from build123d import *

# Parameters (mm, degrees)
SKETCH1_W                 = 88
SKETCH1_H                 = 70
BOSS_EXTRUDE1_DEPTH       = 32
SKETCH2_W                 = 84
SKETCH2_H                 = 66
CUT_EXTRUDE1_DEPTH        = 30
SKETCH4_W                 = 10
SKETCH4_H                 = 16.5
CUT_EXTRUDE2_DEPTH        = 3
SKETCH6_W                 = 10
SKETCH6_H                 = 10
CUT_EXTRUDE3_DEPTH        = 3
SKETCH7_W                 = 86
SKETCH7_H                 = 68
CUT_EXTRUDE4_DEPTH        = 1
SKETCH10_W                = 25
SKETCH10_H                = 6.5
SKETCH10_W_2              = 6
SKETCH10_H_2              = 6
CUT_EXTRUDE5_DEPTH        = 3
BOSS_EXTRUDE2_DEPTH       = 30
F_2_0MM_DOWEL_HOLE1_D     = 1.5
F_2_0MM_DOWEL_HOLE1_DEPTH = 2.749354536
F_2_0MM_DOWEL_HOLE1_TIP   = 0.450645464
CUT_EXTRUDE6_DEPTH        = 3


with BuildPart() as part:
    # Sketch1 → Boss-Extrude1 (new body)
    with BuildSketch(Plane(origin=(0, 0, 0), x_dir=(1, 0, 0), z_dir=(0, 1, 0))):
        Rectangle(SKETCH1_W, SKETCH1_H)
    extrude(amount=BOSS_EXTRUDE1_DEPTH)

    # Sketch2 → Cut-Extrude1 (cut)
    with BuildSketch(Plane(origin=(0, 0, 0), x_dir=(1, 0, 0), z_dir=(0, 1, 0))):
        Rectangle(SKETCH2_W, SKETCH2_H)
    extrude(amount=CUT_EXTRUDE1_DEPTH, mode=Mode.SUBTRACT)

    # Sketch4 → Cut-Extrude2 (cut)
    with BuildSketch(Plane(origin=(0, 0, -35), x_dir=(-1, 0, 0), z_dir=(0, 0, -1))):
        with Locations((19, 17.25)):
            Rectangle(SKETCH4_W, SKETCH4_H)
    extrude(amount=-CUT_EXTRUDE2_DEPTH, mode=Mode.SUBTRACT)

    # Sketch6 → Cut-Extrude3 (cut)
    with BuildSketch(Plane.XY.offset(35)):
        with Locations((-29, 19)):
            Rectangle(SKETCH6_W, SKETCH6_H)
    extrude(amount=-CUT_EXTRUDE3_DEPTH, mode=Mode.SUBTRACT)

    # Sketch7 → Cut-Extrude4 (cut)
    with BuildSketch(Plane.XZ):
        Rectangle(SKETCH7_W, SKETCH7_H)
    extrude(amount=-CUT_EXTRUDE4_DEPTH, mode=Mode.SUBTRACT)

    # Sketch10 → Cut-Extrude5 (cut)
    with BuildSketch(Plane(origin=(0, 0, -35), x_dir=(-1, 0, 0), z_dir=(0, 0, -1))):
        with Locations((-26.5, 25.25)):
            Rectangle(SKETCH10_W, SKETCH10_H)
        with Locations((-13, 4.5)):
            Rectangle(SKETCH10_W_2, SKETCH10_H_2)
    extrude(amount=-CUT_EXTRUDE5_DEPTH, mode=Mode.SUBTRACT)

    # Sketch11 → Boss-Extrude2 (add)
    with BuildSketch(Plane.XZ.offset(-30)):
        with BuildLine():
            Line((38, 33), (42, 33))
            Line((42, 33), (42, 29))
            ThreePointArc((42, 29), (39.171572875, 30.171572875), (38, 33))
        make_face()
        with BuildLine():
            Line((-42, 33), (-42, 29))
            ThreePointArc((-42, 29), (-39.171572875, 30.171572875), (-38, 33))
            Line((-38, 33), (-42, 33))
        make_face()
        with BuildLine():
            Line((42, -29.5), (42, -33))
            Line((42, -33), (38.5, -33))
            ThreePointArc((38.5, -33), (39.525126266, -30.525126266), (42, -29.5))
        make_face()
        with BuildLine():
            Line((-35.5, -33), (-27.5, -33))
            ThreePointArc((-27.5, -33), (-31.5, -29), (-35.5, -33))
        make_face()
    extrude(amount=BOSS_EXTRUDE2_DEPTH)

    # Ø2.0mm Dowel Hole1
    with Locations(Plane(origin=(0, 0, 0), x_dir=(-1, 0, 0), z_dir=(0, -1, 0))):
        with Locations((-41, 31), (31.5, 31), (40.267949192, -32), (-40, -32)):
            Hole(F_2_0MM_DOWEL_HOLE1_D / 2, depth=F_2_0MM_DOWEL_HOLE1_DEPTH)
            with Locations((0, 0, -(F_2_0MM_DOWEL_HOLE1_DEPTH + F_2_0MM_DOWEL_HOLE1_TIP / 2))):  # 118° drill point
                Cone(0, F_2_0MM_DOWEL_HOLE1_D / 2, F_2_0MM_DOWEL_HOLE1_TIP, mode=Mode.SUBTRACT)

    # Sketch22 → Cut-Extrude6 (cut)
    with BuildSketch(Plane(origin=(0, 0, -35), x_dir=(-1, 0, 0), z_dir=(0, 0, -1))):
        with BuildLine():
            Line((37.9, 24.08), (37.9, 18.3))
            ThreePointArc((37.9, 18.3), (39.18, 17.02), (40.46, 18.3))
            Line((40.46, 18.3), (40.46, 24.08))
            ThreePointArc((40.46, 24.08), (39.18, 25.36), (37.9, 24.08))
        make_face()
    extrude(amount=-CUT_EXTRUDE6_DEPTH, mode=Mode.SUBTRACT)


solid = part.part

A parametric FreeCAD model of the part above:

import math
import FreeCAD as App
import Part
import Sketcher

V = App.Vector
Q = App.Units.Quantity

doc = App.newDocument("Part")
body = doc.addObject("PartDesign::Body", "Body")

sketch1 = body.newObject("Sketcher::SketchObject", "Sketch")
sketch1.AttachmentSupport = (doc.getObject("XZ_Plane"), [""])
sketch1.MapMode = "FlatFace"
sketch1.addGeometry([
    Part.LineSegment(V(-44, -35, 0), V(-44, 35, 0)),
    Part.LineSegment(V(-44, 35, 0), V(44, 35, 0)),
    Part.LineSegment(V(44, 35, 0), V(44, -35, 0)),
    Part.LineSegment(V(44, -35, 0), V(-44, -35, 0)),
], False)
sketch1.addConstraint([
    Sketcher.Constraint("Coincident", 0, 2, 1, 1),
    Sketcher.Constraint("Coincident", 1, 2, 2, 1),
    Sketcher.Constraint("Coincident", 2, 2, 3, 1),
    Sketcher.Constraint("Coincident", 3, 2, 0, 1),
    Sketcher.Constraint("Vertical", 0),
    Sketcher.Constraint("Horizontal", 1),
    Sketcher.Constraint("Vertical", 2),
    Sketcher.Constraint("Horizontal", 3),
    Sketcher.Constraint("Symmetric", 0, 2, 2, 2, -1, 1),
    Sketcher.Constraint("DistanceX", 1, 1, 1, 2, Q("88 mm")),
    Sketcher.Constraint("DistanceY", 0, 1, 0, 2, Q("70 mm")),
])
pad1 = body.newObject("PartDesign::Pad", "Pad")
pad1.Profile = sketch1
pad1.Length = 32
pad1.Reversed = True

sketch2 = body.newObject("Sketcher::SketchObject", "Sketch001")
sketch2.AttachmentSupport = (doc.getObject("XZ_Plane"), [""])
sketch2.MapMode = "FlatFace"
sketch2.addGeometry([
    Part.LineSegment(V(-42, -33, 0), V(-42, 33, 0)),
    Part.LineSegment(V(-42, 33, 0), V(42, 33, 0)),
    Part.LineSegment(V(42, 33, 0), V(42, -33, 0)),
    Part.LineSegment(V(42, -33, 0), V(-42, -33, 0)),
], False)
sketch2.addConstraint([
    Sketcher.Constraint("Coincident", 0, 2, 1, 1),
    Sketcher.Constraint("Coincident", 1, 2, 2, 1),
    Sketcher.Constraint("Coincident", 2, 2, 3, 1),
    Sketcher.Constraint("Coincident", 3, 2, 0, 1),
    Sketcher.Constraint("Vertical", 0),
    Sketcher.Constraint("Horizontal", 1),
    Sketcher.Constraint("Vertical", 2),
    Sketcher.Constraint("Horizontal", 3),
    Sketcher.Constraint("Symmetric", 0, 2, 2, 2, -1, 1),
    Sketcher.Constraint("DistanceX", 1, 1, 1, 2, Q("84 mm")),
    Sketcher.Constraint("DistanceY", 0, 1, 0, 2, Q("66 mm")),
])
pocket1 = body.newObject("PartDesign::Pocket", "Pocket")
pocket1.Profile = sketch2
pocket1.Length = 30

sketch3 = body.newObject("Sketcher::SketchObject", "Sketch002")
sketch3.AttachmentSupport = (doc.getObject("XY_Plane"), [""])
sketch3.MapMode = "FlatFace"
sketch3.AttachmentOffset = App.Placement(V(0, 0, -35), App.Rotation())
sketch3.addGeometry([
    Part.LineSegment(V(-14, 26, 0), V(-14, 9, 0)),
    Part.LineSegment(V(-14, 9, 0), V(-24, 9, 0)),
    Part.LineSegment(V(-24, 9, 0), V(-24, 26, 0)),
    Part.LineSegment(V(-24, 26, 0), V(-14, 26, 0)),
], False)
sketch3.addConstraint([
    Sketcher.Constraint("Coincident", 0, 2, 1, 1),
    Sketcher.Constraint("Coincident", 1, 2, 2, 1),
    Sketcher.Constraint("Coincident", 2, 2, 3, 1),
    Sketcher.Constraint("Coincident", 3, 2, 0, 1),
    Sketcher.Constraint("Vertical", 0),
    Sketcher.Constraint("Horizontal", 1),
    Sketcher.Constraint("Vertical", 2),
    Sketcher.Constraint("Horizontal", 3),
    Sketcher.Constraint("DistanceX", 1, 2, 1, 1, Q("10 mm")),
    Sketcher.Constraint("DistanceY", 0, 2, 0, 1, Q("16.5 mm")),
    Sketcher.Constraint("DistanceX", 0, 2, -1, 1, Q("14 mm")),
    Sketcher.Constraint("DistanceY", -1, 1, 0, 2, Q("9 mm")),
])
pocket2 = body.newObject("PartDesign::Pocket", "Pocket001")
pocket2.Profile = sketch3
pocket2.Length = 3
pocket2.Reversed = True

sketch4 = body.newObject("Sketcher::SketchObject", "Sketch003")
sketch4.AttachmentSupport = (doc.getObject("XY_Plane"), [""])
sketch4.MapMode = "FlatFace"
sketch4.AttachmentOffset = App.Placement(V(0, 0, 35), App.Rotation())
sketch4.addGeometry([
    Part.LineSegment(V(-34, 24, 0), V(-34, 14, 0)),
    Part.LineSegment(V(-34, 14, 0), V(-24, 14, 0)),
    Part.LineSegment(V(-24, 14, 0), V(-24, 24, 0)),
    Part.LineSegment(V(-24, 24, 0), V(-34, 24, 0)),
], False)
sketch4.addConstraint([
    Sketcher.Constraint("Coincident", 0, 2, 1, 1),
    Sketcher.Constraint("Coincident", 1, 2, 2, 1),
    Sketcher.Constraint("Coincident", 2, 2, 3, 1),
    Sketcher.Constraint("Coincident", 3, 2, 0, 1),
    Sketcher.Constraint("Vertical", 0),
    Sketcher.Constraint("Horizontal", 1),
    Sketcher.Constraint("Vertical", 2),
    Sketcher.Constraint("Horizontal", 3),
    Sketcher.Constraint("Equal", 3, 0),
    Sketcher.Constraint("DistanceX", 1, 1, 1, 2, Q("10 mm")),
    Sketcher.Constraint("DistanceX", 0, 2, -1, 1, Q("34 mm")),
    Sketcher.Constraint("DistanceY", -1, 1, 0, 2, Q("14 mm")),
])
pocket3 = body.newObject("PartDesign::Pocket", "Pocket002")
pocket3.Profile = sketch4
pocket3.Length = 3

sketch5 = body.newObject("Sketcher::SketchObject", "Sketch004")
sketch5.AttachmentSupport = (doc.getObject("XZ_Plane"), [""])
sketch5.MapMode = "FlatFace"
sketch5.addGeometry([
    Part.LineSegment(V(-43, 34, 0), V(-43, -34, 0)),
    Part.LineSegment(V(-43, -34, 0), V(43, -34, 0)),
    Part.LineSegment(V(43, -34, 0), V(43, 34, 0)),
    Part.LineSegment(V(43, 34, 0), V(-43, 34, 0)),
], False)
sketch5.addConstraint([
    Sketcher.Constraint("Coincident", 0, 2, 1, 1),
    Sketcher.Constraint("Coincident", 1, 2, 2, 1),
    Sketcher.Constraint("Coincident", 2, 2, 3, 1),
    Sketcher.Constraint("Coincident", 3, 2, 0, 1),
    Sketcher.Constraint("Vertical", 0),
    Sketcher.Constraint("Horizontal", 1),
    Sketcher.Constraint("Vertical", 2),
    Sketcher.Constraint("Horizontal", 3),
    Sketcher.Constraint("Symmetric", 0, 2, 2, 2, -1, 1),
    Sketcher.Constraint("DistanceX", 1, 1, 1, 2, Q("86 mm")),
    Sketcher.Constraint("DistanceY", 0, 2, 0, 1, Q("68 mm")),
])
pocket4 = body.newObject("PartDesign::Pocket", "Pocket003")
pocket4.Profile = sketch5
pocket4.Length = 1

sketch6 = body.newObject("Sketcher::SketchObject", "Sketch005")
sketch6.AttachmentSupport = (doc.getObject("XY_Plane"), [""])
sketch6.MapMode = "FlatFace"
sketch6.AttachmentOffset = App.Placement(V(0, 0, -35), App.Rotation())
sketch6.addGeometry([
    Part.LineSegment(V(39, 28, 0), V(39, 22, 0)),
    Part.LineSegment(V(39, 22, 0), V(14, 22, 0)),
    Part.LineSegment(V(14, 22, 0), V(14, 28, 0)),
    Part.LineSegment(V(14, 28, 0), V(39, 28, 0)),
    Part.LineSegment(V(16, 8, 0), V(16, 2, 0)),
    Part.LineSegment(V(16, 2, 0), V(10, 2, 0)),
    Part.LineSegment(V(10, 2, 0), V(10, 8, 0)),
    Part.LineSegment(V(10, 8, 0), V(16, 8, 0)),
], False)
sketch6.addConstraint([
    Sketcher.Constraint("Coincident", 0, 2, 1, 1),
    Sketcher.Constraint("Coincident", 1, 2, 2, 1),
    Sketcher.Constraint("Coincident", 2, 2, 3, 1),
    Sketcher.Constraint("Coincident", 3, 2, 0, 1),
    Sketcher.Constraint("Coincident", 4, 2, 5, 1),
    Sketcher.Constraint("Coincident", 5, 2, 6, 1),
    Sketcher.Constraint("Coincident", 6, 2, 7, 1),
    Sketcher.Constraint("Coincident", 7, 2, 4, 1),
    Sketcher.Constraint("Vertical", 0),
    Sketcher.Constraint("Horizontal", 1),
    Sketcher.Constraint("Vertical", 2),
    Sketcher.Constraint("Horizontal", 3),
    Sketcher.Constraint("Vertical", 4),
    Sketcher.Constraint("Horizontal", 5),
    Sketcher.Constraint("Vertical", 6),
    Sketcher.Constraint("Horizontal", 7),
    Sketcher.Constraint("Equal", 7, 4),
    Sketcher.Constraint("DistanceX", 1, 2, 1, 1, Q("25 mm")),
    Sketcher.Constraint("DistanceX", 5, 2, 5, 1, Q("6 mm")),
    Sketcher.Constraint("DistanceY", 0, 2, 0, 1, Q("6.5 mm")),
    Sketcher.Constraint("DistanceX", -1, 1, 0, 2, Q("39 mm")),
    Sketcher.Constraint("DistanceY", -1, 1, 0, 2, Q("22 mm")),
    Sketcher.Constraint("DistanceX", -1, 1, 4, 2, Q("16 mm")),
    Sketcher.Constraint("DistanceY", 4, 2, 2, 2, Q("27 mm")),
])
pocket5 = body.newObject("PartDesign::Pocket", "Pocket004")
pocket5.Profile = sketch6
pocket5.Length = 3
pocket5.Reversed = True

sketch7 = body.newObject("Sketcher::SketchObject", "Sketch006")
sketch7.AttachmentSupport = (doc.getObject("XZ_Plane"), [""])
sketch7.MapMode = "FlatFace"
sketch7.AttachmentOffset = App.Placement(V(0, 0, -30), App.Rotation())
sketch7.addGeometry([
    Part.LineSegment(V(42, 33, 0), V(38, 33, 0)),
    Part.ArcOfCircle(Part.Circle(V(42, 33, 0), V(0, 0, 1), 4), math.radians(180), math.radians(270)),
    Part.LineSegment(V(42, 29, 0), V(42, 33, 0)),
    Part.LineSegment(V(-42, 33, 0), V(-42, 29, 0)),
    Part.ArcOfCircle(Part.Circle(V(-42, 33, 0), V(0, 0, 1), 4), math.radians(-90), math.radians(0)),
    Part.LineSegment(V(-38, 33, 0), V(-42, 33, 0)),
    Part.LineSegment(V(42, -33, 0), V(42, -29.5, 0)),
    Part.ArcOfCircle(Part.Circle(V(42, -33, 0), V(0, 0, 1), 3.5), math.radians(90), math.radians(180)),
    Part.LineSegment(V(38.5, -33, 0), V(42, -33, 0)),
    Part.LineSegment(V(-35.5, -33, 0), V(-27.5, -33, 0)),
    Part.ArcOfCircle(Part.Circle(V(-31.5, -33, 0), V(0, 0, 1), 4), math.radians(0), math.radians(180)),
], False)
sketch7.addConstraint([
    Sketcher.Constraint("Coincident", 0, 2, 1, 1),
    Sketcher.Constraint("Coincident", 1, 2, 2, 1),
    Sketcher.Constraint("Coincident", 2, 2, 0, 1),
    Sketcher.Constraint("Coincident", 3, 2, 4, 1),
    Sketcher.Constraint("Coincident", 4, 2, 5, 1),
    Sketcher.Constraint("Coincident", 5, 2, 3, 1),
    Sketcher.Constraint("Coincident", 6, 2, 7, 1),
    Sketcher.Constraint("Coincident", 7, 2, 8, 1),
    Sketcher.Constraint("Coincident", 8, 2, 6, 1),
    Sketcher.Constraint("Coincident", 9, 1, 10, 2),
    Sketcher.Constraint("Coincident", 10, 1, 9, 2),
    Sketcher.Constraint("Horizontal", 0),
    Sketcher.Constraint("Vertical", 2),
    Sketcher.Constraint("Vertical", 3),
    Sketcher.Constraint("Horizontal", 5),
    Sketcher.Constraint("Vertical", 6),
    Sketcher.Constraint("Horizontal", 8),
    Sketcher.Constraint("Horizontal", 9),
    Sketcher.Constraint("Coincident", 2, 2, 1, 3),
    Sketcher.Constraint("Coincident", 5, 2, 4, 3),
    Sketcher.Constraint("Coincident", 8, 2, 7, 3),
    Sketcher.Constraint("Equal", 1, 4),
    Sketcher.Constraint("Equal", 4, 10),
    Sketcher.Constraint("Symmetric", 4, 3, 7, 3, -1, 1),
    Sketcher.Constraint("Symmetric", 1, 3, 4, 3, -2),
    Sketcher.Constraint("Horizontal", 7, 3, 10, 3),
    Sketcher.Constraint("Horizontal", 8, 2, 9, 1),
    Sketcher.Constraint("Radius", 1, Q("4 mm")),
    Sketcher.Constraint("Radius", 7, Q("3.5 mm")),
    Sketcher.Constraint("DistanceX", -1, 1, 1, 3, Q("42 mm")),
    Sketcher.Constraint("DistanceY", -1, 1, 1, 3, Q("33 mm")),
    Sketcher.Constraint("DistanceX", 10, 1, 7, 2, Q("66 mm")),
])
pad2 = body.newObject("PartDesign::Pad", "Pad001")
pad2.Profile = sketch7
pad2.Length = 30

sketch8 = body.newObject("Sketcher::SketchObject", "Sketch007")
sketch8.AttachmentSupport = (doc.getObject("XZ_Plane"), [""])
sketch8.MapMode = "FlatFace"
sketch8.addGeometry([
    Part.Circle(V(41, -31, 0), V(0, 0, 1), 0.8),
    Part.Circle(V(-31.5, -31, 0), V(0, 0, 1), 0.8),
    Part.Circle(V(-40.3, 32, 0), V(0, 0, 1), 0.8),
    Part.Circle(V(40, 32, 0), V(0, 0, 1), 0.8),
], False)
sketch8.addConstraint([
    Sketcher.Constraint("Equal", 0, 1),
    Sketcher.Constraint("Equal", 1, 2),
    Sketcher.Constraint("Equal", 2, 3),
    Sketcher.Constraint("Horizontal", 0, 3, 1, 3),
    Sketcher.Constraint("Horizontal", 2, 3, 3, 3),
    Sketcher.Constraint("Diameter", 0, Q("1.5 mm")),
    Sketcher.Constraint("DistanceX", -1, 1, 0, 3, Q("41 mm")),
    Sketcher.Constraint("DistanceY", 0, 3, -1, 1, Q("31 mm")),
    Sketcher.Constraint("DistanceY", -1, 1, 2, 3, Q("32 mm")),
    Sketcher.Constraint("DistanceX", -1, 1, 3, 3, Q("40 mm")),
    Sketcher.Constraint("DistanceX", 1, 3, -1, 1, Q("31.5 mm")),
    Sketcher.Constraint("DistanceX", 2, 3, -1, 1, Q("40.267949 mm")),
])
doc.recompute()
hole = body.newObject("PartDesign::Hole", "Hole")
hole.Profile = sketch8
hole.ThreadType = "None"
hole.Diameter = 1.5
hole.DepthType = "Dimension"
hole.Depth = 2.749355
hole.DrillPoint = "Angled"
hole.DrillPointAngle = 118

sketch9 = body.newObject("Sketcher::SketchObject", "Sketch008")
sketch9.AttachmentSupport = (doc.getObject("XY_Plane"), [""])
sketch9.MapMode = "FlatFace"
sketch9.AttachmentOffset = App.Placement(V(0, 0, -35), App.Rotation())
sketch9.addGeometry([
    Part.LineSegment(V(-37.9, 24.1, 0), V(-37.9, 18.3, 0)),
    Part.ArcOfCircle(Part.Circle(V(-39.2, 18.3, 0), V(0, 0, 1), 1.3), math.radians(180), math.radians(360)),
    Part.LineSegment(V(-40.5, 18.3, 0), V(-40.5, 24.1, 0)),
    Part.ArcOfCircle(Part.Circle(V(-39.2, 24.1, 0), V(0, 0, 1), 1.3), math.radians(0), math.radians(180)),
], False)
sketch9.addConstraint([
    Sketcher.Constraint("Tangent", 0, 2, 1, 2),
    Sketcher.Constraint("Tangent", 1, 1, 2, 1),
    Sketcher.Constraint("Tangent", 2, 2, 3, 2),
    Sketcher.Constraint("Tangent", 3, 1, 0, 1),
    Sketcher.Constraint("Vertical", 0),
    Sketcher.Constraint("Vertical", 2),
    Sketcher.Constraint("Radius", 1, Q("1.28 mm")),
    Sketcher.Constraint("DistanceY", 0, 2, 0, 1, Q("5.78 mm")),
    Sketcher.Constraint("DistanceY", -1, 1, 1, 3, Q("18.3 mm")),
    Sketcher.Constraint("DistanceX", 0, 2, -1, 1, Q("37.9 mm")),
])
pocket6 = body.newObject("PartDesign::Pocket", "Pocket005")
pocket6.Profile = sketch9
pocket6.Length = 3
pocket6.Reversed = True

doc.recompute()
